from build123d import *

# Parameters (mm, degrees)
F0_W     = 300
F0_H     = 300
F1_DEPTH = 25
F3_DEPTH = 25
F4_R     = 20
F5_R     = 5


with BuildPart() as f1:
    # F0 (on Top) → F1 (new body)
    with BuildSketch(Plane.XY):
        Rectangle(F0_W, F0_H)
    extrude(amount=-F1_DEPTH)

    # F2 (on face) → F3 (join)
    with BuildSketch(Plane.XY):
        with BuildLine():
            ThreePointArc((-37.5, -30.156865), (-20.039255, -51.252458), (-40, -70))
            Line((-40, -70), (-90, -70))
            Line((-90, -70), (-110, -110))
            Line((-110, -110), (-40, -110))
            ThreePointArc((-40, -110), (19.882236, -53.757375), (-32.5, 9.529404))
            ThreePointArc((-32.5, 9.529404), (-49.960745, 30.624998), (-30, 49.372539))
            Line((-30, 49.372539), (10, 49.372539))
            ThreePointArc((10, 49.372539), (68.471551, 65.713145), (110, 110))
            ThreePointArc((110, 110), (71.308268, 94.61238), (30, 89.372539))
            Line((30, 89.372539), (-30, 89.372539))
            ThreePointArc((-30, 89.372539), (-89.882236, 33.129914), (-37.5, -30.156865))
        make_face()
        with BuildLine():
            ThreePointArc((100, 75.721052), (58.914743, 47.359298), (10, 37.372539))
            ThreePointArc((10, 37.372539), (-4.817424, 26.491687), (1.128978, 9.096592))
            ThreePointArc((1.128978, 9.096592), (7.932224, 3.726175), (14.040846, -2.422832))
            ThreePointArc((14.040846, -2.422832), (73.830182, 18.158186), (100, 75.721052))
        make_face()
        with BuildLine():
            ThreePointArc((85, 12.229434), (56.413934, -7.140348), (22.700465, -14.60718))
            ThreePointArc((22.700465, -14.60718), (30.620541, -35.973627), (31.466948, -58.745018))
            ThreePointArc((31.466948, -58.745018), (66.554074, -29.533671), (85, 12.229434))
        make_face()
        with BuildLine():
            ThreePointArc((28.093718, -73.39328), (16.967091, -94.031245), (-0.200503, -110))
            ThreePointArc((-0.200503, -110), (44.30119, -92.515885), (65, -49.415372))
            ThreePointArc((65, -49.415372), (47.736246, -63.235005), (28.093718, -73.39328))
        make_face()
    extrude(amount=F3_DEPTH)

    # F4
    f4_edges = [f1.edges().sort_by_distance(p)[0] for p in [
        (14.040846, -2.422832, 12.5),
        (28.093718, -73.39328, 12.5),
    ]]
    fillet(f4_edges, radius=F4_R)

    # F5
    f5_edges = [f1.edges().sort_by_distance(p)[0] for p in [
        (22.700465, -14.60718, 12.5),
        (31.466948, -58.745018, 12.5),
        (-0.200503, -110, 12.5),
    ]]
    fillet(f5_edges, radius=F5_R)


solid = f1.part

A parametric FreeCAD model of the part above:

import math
import FreeCAD as App
import Part
import Sketcher
Q = App.Units.Quantity


def edges_at(feature, points):
    """Names of the edges that pass closest to the given points."""
    edges = feature.Shape.Edges
    near = lambda p: min(range(len(edges)), key=lambda i: edges[i].distToShape(Part.Vertex(*p))[0])
    return sorted({f"Edge{near(p) + 1}" for p in points})

doc = App.newDocument("Part")
body = doc.addObject("PartDesign::Body", "Body")

sketch1 = doc.addObject("Sketcher::SketchObject", "Sketch")
body.addObject(sketch1)
sketch1.AttachmentSupport = (doc.XY_Plane, [""])
sketch1.MapMode = "FlatFace"
sketch1.addGeometry([
    Part.LineSegment(App.Vector(-150, 150, 0), App.Vector(-150, -150, 0)),
    Part.LineSegment(App.Vector(-150, -150, 0), App.Vector(150, -150, 0)),
    Part.LineSegment(App.Vector(150, -150, 0), App.Vector(150, 150, 0)),
    Part.LineSegment(App.Vector(150, 150, 0), App.Vector(-150, 150, 0)),
], False)
sketch1.addConstraint([
    Sketcher.Constraint("Coincident", 0, 2, 1, 1),
    Sketcher.Constraint("Coincident", 1, 2, 2, 1),
    Sketcher.Constraint("Coincident", 2, 2, 3, 1),
    Sketcher.Constraint("Coincident", 3, 2, 0, 1),
    Sketcher.Constraint("Vertical", 0),
    Sketcher.Constraint("Horizontal", 1),
    Sketcher.Constraint("Vertical", 2),
    Sketcher.Constraint("Horizontal", 3),
    Sketcher.Constraint("Symmetric", 0, 2, 2, 2, -1, 1),
    Sketcher.Constraint("Equal", 3, 0),
    Sketcher.Constraint("DistanceX", 1, 1, 1, 2, Q("300 mm")),
])
pad1 = doc.addObject("PartDesign::Pad", "Pad")
body.addObject(pad1)
pad1.Profile = sketch1
pad1.Length = 25
pad1.Reversed = True

sketch2 = doc.addObject("Sketcher::SketchObject", "Sketch001")
body.addObject(sketch2)
sketch2.AttachmentSupport = (doc.XY_Plane, [""])
sketch2.MapMode = "FlatFace"
sketch2.addGeometry([
    Part.ArcOfCircle(Part.Circle(App.Vector(-40, -50, 0), App.Vector(0, 0, 1), 20), math.radians(-89.999999), math.radians(82.819243)),
    Part.LineSegment(App.Vector(-40, -70, 0), App.Vector(-90, -70, 0)),
    Part.LineSegment(App.Vector(-90, -70, 0), App.Vector(-110, -110, 0)),
    Part.LineSegment(App.Vector(-110, -110, 0), App.Vector(-40, -110, 0)),
    Part.ArcOfCircle(Part.Circle(App.Vector(-39.999999, -50, 0), App.Vector(0, 0, 1), 60), math.radians(-90.000001), math.radians(82.819245)),
    Part.ArcOfCircle(Part.Circle(App.Vector(-30, 29.372539, 0), App.Vector(0, 0, 1), 20), math.radians(90.000001), math.radians(262.819244)),
    Part.LineSegment(App.Vector(-30, 49.372539, 0), App.Vector(10, 49.372539, 0)),
    Part.ArcOfCircle(Part.Circle(App.Vector(9.999999, 162.15715, 0), App.Vector(0, 0, 1), 112.784611), math.radians(-90), math.radians(-27.545261)),
    Part.ArcOfCircle(Part.Circle(App.Vector(29.999994, 254.819295, 0), App.Vector(0, 0, 1), 165.446756), math.radians(-89.999998), math.radians(-61.083186)),
    Part.LineSegment(App.Vector(30, 89.372539, 0), App.Vector(-30, 89.372539, 0)),
    Part.ArcOfCircle(Part.Circle(App.Vector(-30.000001, 29.372539, 0), App.Vector(0, 0, 1), 60), math.radians(89.999999), math.radians(262.819245)),
    Part.ArcOfCircle(Part.Circle(App.Vector(9.999996, 162.157158, 0), App.Vector(0, 0, 1), 124.784619), math.radians(-89.999998), math.radians(-43.842819)),
    Part.ArcOfCircle(Part.Circle(App.Vector(10, 21.843011, 0), App.Vector(0, 0, 1), 15.529528), math.radians(89.999999), math.radians(235.163555)),
    Part.ArcOfCircle(Part.Circle(App.Vector(-40.000006, -50.000003, 0), App.Vector(0, 0, 1), 72.000006), math.radians(41.360455), math.radians(55.163551)),
    Part.ArcOfCircle(Part.Circle(App.Vector(20.01666, 77.353667, 0), App.Vector(0, 0, 1), 80.000001), math.radians(-94.283851), math.radians(-1.169356)),
    Part.ArcOfCircle(Part.Circle(App.Vector(20.016658, 77.353672, 0), App.Vector(0, 0, 1), 92.000006), math.radians(-88.328341), math.radians(-45.062047)),
    Part.ArcOfCircle(Part.Circle(App.Vector(-40.000008, -50.000001, 0), App.Vector(0, 0, 1), 72.000008), math.radians(-6.976287), math.radians(29.443622)),
    Part.ArcOfCircle(Part.Circle(App.Vector(-13.282454, 30.683673, 0), App.Vector(0, 0, 1), 99.999999), math.radians(-63.416983), math.radians(-10.634454)),
    Part.ArcOfCircle(Part.Circle(App.Vector(-39.999998, -50.000002, 0), App.Vector(0, 0, 1), 71.999997), math.radians(-56.442691), math.radians(-18.95992)),
    Part.ArcOfCircle(Part.Circle(App.Vector(-0.200503, -44.623658, 0), App.Vector(0, 0, 1), 65.376342), math.radians(-90), math.radians(-4.203224)),
    Part.ArcOfCircle(Part.Circle(App.Vector(-13.282438, 30.683645, 0), App.Vector(0, 0, 1), 111.999967), math.radians(-68.319527), math.radians(-45.657133)),
], False)
sketch2.addConstraint([
    Sketcher.Constraint("Coincident", 0, 1, 1, 1),
    Sketcher.Constraint("Coincident", 1, 2, 2, 1),
    Sketcher.Constraint("Coincident", 2, 2, 3, 1),
    Sketcher.Constraint("Coincident", 3, 2, 4, 1),
    Sketcher.Constraint("Coincident", 4, 2, 5, 2),
    Sketcher.Constraint("Coincident", 5, 1, 6, 1),
    Sketcher.Constraint("Coincident", 6, 2, 7, 1),
    Sketcher.Constraint("Coincident", 7, 2, 8, 2),
    Sketcher.Constraint("Coincident", 8, 1, 9, 1),
    Sketcher.Constraint("Coincident", 9, 2, 10, 1),
    Sketcher.Constraint("Coincident", 10, 2, 0, 2),
    Sketcher.Constraint("Coincident", 11, 1, 12, 1),
    Sketcher.Constraint("Coincident", 12, 2, 13, 2),
    Sketcher.Constraint("Coincident", 13, 1, 14, 1),
    Sketcher.Constraint("Coincident", 14, 2, 11, 2),
    Sketcher.Constraint("Coincident", 15, 1, 16, 2),
    Sketcher.Constraint("Coincident", 16, 1, 17, 1),
    Sketcher.Constraint("Coincident", 17, 2, 15, 2),
    Sketcher.Constraint("Coincident", 18, 1, 19, 1),
    Sketcher.Constraint("Coincident", 19, 2, 20, 2),
    Sketcher.Constraint("Coincident", 20, 1, 18, 2),
    Sketcher.Constraint("Horizontal", 1),
    Sketcher.Constraint("Horizontal", 3),
    Sketcher.Constraint("Horizontal", 6),
    Sketcher.Constraint("Horizontal", 9),
    Sketcher.Constraint("Coincident", 4, 3, 0, 3),
    Sketcher.Constraint("Coincident", 10, 3, 5, 3),
    Sketcher.Constraint("Coincident", 11, 3, 7, 3),
    Sketcher.Constraint("Coincident", 13, 3, 0, 3),
    Sketcher.Constraint("Coincident", 15, 3, 14, 3),
    Sketcher.Constraint("Coincident", 16, 3, 0, 3),
    Sketcher.Constraint("Coincident", 18, 3, 0, 3),
    Sketcher.Constraint("Radius", 0, Q("20 mm")),
    Sketcher.Constraint("Radius", 4, Q("60 mm")),
    Sketcher.Constraint("Radius", 5, Q("20 mm")),
    Sketcher.Constraint("Radius", 14, Q("80.000001 mm")),
    Sketcher.Constraint("Radius", 17, Q("99.999999 mm")),
    Sketcher.Constraint("DistanceX", 1, 2, 1, 1, Q("50 mm")),
    Sketcher.Constraint("DistanceX", 3, 1, 3, 2, Q("70 mm")),
    Sketcher.Constraint("DistanceX", 6, 1, 6, 2, Q("40 mm")),
    Sketcher.Constraint("DistanceX", 9, 2, 9, 1, Q("60 mm")),
    Sketcher.Constraint("DistanceX", 0, 3, -1, 1, Q("40 mm")),
    Sketcher.Constraint("DistanceY", 0, 3, -1, 1, Q("50 mm")),
    Sketcher.Constraint("DistanceX", 5, 3, -1, 1, Q("30 mm")),
    Sketcher.Constraint("DistanceX", -1, 1, 7, 3, Q("9.999999 mm")),
    Sketcher.Constraint("DistanceX", -1, 1, 12, 3, Q("10 mm")),
    Sketcher.Constraint("DistanceX", 0, 1, -1, 1, Q("40 mm")),
    Sketcher.Constraint("DistanceX", 2, 2, -1, 1, Q("110 mm")),
    Sketcher.Constraint("DistanceX", 5, 1, -1, 1, Q("30 mm")),
    Sketcher.Constraint("DistanceX", -1, 1, 7, 2, Q("110 mm")),
    Sketcher.Constraint("DistanceY", -1, 1, 7, 2, Q("110 mm")),
    Sketcher.Constraint("DistanceX", -1, 1, 8, 1, Q("30 mm")),
    Sketcher.Constraint("DistanceX", -1, 1, 11, 1, Q("10 mm")),
    Sketcher.Constraint("DistanceX", -1, 1, 14, 2, Q("100 mm")),
    Sketcher.Constraint("DistanceX", -1, 1, 17, 2, Q("85 mm")),
    Sketcher.Constraint("DistanceY", 18, 1, -1, 1, Q("110 mm")),
    Sketcher.Constraint("DistanceX", -1, 1, 19, 2, Q("65 mm")),
    Sketcher.Constraint("DistanceX", 11, 3, 8, 3, Q("19.999999 mm")),
    Sketcher.Constraint("DistanceY", 11, 1, 6, 2, Q("12 mm")),
    Sketcher.Constraint("DistanceX", 4, 2, -1, 1, Q("32.5 mm")),
    Sketcher.Constraint("DistanceX", 10, 2, -1, 1, Q("37.5 mm")),
    Sketcher.Constraint("DistanceY", 17, 3, 15, 3, Q("46.669999 mm")),
    Sketcher.Constraint("Radius", 12, Q("15.529528 mm")),
    Sketcher.Constraint("Radius", 15, Q("92.000006 mm")),
    Sketcher.Constraint("Radius", 16, Q("72.000008 mm")),
    Sketcher.Constraint("Radius", 18, Q("71.999997 mm")),
    Sketcher.Constraint("Radius", 19, Q("65.376342 mm")),
    Sketcher.Constraint("Radius", 20, Q("111.999967 mm")),
    Sketcher.Constraint("DistanceX", 17, 3, 13, 1, Q("27.3233 mm")),
    Sketcher.Constraint("DistanceY", 20, 1, 15, 1, Q("58.7861 mm")),
    Sketcher.Constraint("DistanceY", -1, 1, 12, 2, Q("9.096592 mm")),
    Sketcher.Constraint("DistanceY", 4, 2, 20, 3, Q("21.154241 mm")),
])
pad2 = doc.addObject("PartDesign::Pad", "Pad001")
body.addObject(pad2)
pad2.Profile = sketch2
pad2.Length = 25
doc.recompute()

fillet = doc.addObject("PartDesign::Fillet", "Fillet")
body.addObject(fillet)
fillet.Base = (pad2, edges_at(pad2, [(14.041, -2.423, 12.5), (28.094, -73.393, 12.5)]))
fillet.Radius = 20
doc.recompute()

fillet2 = doc.addObject("PartDesign::Fillet", "Fillet001")
body.addObject(fillet2)
fillet2.Base = (fillet, edges_at(fillet, [(22.7, -14.607, 12.5), (31.467, -58.745, 12.5), (-0.201, -110, 12.5)]))
fillet2.Radius = 5

doc.recompute()
